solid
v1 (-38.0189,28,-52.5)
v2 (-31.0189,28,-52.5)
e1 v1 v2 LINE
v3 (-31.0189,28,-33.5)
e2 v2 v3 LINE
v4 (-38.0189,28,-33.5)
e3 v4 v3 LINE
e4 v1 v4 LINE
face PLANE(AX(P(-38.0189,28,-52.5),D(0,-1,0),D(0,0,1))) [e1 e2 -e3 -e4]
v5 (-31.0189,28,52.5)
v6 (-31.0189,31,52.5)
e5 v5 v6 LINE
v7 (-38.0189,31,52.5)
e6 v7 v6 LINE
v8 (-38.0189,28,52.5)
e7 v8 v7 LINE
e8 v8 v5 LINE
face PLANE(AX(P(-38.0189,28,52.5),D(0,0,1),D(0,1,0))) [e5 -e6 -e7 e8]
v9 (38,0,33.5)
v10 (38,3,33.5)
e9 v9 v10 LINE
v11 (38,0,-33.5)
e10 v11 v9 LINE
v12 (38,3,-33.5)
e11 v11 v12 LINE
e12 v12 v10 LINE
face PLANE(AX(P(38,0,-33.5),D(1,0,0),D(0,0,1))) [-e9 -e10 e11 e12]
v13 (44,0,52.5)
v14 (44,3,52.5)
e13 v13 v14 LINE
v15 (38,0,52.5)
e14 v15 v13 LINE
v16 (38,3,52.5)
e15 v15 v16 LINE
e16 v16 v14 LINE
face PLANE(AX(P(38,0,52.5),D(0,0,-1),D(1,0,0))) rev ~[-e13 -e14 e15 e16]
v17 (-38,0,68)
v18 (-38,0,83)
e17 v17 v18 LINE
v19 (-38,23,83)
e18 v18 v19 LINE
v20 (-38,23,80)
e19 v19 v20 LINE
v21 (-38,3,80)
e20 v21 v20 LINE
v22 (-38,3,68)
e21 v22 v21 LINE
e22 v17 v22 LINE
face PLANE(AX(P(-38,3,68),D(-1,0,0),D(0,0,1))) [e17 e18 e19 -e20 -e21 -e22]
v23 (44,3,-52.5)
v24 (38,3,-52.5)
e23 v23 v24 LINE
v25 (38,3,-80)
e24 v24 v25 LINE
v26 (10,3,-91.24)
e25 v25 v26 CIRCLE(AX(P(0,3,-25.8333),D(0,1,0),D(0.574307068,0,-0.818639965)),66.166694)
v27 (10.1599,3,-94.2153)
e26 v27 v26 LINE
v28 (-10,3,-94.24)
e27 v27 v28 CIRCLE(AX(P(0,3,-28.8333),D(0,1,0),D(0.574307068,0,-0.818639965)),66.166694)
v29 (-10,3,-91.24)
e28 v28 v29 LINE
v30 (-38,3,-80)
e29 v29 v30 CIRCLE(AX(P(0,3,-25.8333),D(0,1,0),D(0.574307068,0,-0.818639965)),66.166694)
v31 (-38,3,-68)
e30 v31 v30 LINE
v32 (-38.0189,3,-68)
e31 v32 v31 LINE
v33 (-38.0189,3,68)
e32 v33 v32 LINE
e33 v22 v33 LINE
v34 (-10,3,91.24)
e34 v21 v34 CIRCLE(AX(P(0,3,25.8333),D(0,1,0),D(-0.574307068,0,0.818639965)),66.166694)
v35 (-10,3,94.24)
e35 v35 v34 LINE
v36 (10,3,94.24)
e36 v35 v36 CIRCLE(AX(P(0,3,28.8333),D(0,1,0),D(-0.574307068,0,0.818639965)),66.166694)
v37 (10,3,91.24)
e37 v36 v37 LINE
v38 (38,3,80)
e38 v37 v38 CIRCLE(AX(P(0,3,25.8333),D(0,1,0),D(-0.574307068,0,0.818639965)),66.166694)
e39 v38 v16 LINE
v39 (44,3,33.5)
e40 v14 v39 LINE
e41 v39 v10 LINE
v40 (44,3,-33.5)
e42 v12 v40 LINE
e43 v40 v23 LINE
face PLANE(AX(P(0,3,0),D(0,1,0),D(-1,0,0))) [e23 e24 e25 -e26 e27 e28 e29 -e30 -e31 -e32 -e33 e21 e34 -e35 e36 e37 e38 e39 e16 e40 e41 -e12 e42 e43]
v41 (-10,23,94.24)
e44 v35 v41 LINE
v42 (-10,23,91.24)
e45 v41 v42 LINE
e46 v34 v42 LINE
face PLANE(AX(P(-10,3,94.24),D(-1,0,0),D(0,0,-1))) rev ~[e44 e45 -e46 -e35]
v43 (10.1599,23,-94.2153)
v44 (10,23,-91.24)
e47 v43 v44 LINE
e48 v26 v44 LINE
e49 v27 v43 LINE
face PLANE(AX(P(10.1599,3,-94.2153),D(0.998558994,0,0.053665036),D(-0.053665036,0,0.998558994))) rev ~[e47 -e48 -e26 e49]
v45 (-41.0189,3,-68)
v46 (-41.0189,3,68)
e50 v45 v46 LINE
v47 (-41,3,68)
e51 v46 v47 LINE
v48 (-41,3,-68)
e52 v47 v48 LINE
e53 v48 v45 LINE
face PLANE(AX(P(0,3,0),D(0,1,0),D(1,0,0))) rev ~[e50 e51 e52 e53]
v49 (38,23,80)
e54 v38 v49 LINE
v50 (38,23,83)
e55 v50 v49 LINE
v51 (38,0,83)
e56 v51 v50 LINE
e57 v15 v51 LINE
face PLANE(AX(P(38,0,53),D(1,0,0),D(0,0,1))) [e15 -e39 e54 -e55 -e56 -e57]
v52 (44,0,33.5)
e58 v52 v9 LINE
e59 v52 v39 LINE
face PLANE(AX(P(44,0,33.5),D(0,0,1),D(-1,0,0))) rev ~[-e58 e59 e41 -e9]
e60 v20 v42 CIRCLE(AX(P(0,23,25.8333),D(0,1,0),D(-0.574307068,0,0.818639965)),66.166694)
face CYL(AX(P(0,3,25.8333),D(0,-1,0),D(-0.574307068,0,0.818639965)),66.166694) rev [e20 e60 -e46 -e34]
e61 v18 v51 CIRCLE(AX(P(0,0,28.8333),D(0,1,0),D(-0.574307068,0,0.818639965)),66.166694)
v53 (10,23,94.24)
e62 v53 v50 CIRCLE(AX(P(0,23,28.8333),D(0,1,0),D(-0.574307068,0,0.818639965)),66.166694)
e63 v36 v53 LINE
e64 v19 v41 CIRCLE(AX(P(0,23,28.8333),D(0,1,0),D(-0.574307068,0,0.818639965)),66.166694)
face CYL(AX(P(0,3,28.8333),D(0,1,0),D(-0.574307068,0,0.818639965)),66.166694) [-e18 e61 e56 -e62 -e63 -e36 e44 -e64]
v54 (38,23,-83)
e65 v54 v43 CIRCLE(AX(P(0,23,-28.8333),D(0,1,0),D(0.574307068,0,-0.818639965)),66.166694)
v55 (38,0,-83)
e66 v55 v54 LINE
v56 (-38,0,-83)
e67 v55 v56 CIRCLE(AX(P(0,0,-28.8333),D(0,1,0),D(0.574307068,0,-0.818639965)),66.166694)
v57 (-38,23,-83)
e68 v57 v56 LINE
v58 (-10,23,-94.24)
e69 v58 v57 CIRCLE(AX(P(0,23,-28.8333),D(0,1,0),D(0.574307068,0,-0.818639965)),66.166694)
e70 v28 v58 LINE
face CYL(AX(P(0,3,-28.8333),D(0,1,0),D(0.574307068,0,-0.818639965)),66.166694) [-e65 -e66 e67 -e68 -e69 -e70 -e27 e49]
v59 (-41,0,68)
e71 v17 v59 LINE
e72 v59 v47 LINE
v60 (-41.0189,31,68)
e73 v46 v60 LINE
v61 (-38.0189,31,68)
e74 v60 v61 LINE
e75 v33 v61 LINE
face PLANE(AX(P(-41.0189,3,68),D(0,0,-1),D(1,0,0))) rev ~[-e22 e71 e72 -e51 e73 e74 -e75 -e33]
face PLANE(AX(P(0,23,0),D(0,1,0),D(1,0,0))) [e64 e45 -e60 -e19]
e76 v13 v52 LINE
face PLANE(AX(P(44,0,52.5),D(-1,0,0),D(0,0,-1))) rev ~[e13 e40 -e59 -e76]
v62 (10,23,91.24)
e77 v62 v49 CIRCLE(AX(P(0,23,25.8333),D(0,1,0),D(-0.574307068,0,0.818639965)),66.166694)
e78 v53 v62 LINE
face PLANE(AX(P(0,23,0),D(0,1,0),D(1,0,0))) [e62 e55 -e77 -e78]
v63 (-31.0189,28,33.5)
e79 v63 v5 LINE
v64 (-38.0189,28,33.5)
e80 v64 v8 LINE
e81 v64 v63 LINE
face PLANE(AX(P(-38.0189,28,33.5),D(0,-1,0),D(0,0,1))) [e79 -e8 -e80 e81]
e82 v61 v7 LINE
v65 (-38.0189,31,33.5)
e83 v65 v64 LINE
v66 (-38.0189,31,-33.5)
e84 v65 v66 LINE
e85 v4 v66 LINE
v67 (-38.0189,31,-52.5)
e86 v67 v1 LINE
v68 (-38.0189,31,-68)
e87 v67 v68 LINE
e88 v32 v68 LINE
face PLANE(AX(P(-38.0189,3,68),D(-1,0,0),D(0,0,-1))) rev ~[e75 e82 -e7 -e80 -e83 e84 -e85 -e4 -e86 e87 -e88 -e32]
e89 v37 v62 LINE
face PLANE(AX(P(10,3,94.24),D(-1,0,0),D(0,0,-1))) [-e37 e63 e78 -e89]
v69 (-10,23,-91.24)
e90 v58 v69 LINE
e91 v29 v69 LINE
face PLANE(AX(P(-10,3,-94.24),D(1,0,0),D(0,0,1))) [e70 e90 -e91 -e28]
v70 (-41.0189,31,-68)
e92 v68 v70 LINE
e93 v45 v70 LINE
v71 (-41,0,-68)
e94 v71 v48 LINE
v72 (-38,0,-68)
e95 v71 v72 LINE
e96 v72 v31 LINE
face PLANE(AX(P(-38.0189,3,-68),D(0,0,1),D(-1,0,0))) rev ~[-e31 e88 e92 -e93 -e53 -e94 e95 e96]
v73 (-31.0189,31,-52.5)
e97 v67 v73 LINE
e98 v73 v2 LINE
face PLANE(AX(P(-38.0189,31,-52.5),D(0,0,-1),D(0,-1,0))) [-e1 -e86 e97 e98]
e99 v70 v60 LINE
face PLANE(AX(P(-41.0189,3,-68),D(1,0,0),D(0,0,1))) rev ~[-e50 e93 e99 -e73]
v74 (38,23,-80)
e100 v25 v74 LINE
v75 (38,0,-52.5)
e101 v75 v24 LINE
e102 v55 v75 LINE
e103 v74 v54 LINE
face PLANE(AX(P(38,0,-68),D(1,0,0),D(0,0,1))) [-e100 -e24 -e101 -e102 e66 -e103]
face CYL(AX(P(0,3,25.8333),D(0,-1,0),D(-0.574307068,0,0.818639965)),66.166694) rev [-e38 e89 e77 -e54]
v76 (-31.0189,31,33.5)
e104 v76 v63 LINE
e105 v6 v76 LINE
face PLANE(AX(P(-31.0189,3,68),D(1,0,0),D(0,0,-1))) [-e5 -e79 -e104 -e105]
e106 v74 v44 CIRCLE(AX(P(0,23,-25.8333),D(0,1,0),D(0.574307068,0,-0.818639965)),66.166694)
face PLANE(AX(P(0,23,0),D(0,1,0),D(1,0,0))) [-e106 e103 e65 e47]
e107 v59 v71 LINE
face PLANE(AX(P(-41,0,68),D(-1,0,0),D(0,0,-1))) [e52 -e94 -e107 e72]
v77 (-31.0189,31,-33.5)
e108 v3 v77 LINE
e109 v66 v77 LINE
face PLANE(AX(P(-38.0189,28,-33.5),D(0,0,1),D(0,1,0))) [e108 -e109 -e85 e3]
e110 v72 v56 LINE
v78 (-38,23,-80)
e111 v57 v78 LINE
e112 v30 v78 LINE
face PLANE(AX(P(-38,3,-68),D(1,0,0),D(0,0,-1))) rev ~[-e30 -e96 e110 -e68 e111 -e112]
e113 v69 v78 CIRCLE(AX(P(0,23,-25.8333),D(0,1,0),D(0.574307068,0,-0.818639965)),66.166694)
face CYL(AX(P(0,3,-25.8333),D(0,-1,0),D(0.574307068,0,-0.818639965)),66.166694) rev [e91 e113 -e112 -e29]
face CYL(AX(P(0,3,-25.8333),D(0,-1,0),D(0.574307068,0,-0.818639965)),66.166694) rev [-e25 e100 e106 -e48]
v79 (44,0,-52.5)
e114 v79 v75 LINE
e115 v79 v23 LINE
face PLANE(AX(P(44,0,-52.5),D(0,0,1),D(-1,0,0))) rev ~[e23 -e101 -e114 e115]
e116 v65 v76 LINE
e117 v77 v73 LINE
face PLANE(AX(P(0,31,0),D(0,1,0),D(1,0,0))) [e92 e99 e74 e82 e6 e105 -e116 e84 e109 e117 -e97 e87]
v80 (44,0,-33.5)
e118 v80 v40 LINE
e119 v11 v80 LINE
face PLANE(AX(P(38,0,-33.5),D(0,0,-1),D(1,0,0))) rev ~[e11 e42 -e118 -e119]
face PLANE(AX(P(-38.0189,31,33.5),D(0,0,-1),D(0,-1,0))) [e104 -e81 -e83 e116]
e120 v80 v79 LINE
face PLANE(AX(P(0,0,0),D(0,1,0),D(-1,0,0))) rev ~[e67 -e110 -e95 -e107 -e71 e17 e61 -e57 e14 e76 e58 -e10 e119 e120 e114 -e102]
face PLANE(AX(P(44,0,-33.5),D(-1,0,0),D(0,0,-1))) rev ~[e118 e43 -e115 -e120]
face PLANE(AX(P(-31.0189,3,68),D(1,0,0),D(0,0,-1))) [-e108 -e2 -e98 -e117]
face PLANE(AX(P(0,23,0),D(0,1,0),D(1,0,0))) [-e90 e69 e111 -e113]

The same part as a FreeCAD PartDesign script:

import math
import FreeCAD as App
import Part
import Sketcher

V = App.Vector


def add_polygon(sketch, points):
    """Adds a closed chain of lines whose ends are joined by coincident constraints."""
    first, n = sketch.GeometryCount, len(points)
    for a, b in zip(points, points[1:] + points[:1]):
        sketch.addGeometry(Part.LineSegment(App.Vector(*a, 0), App.Vector(*b, 0)), False)
    for i in range(n):
        sketch.addConstraint(Sketcher.Constraint("Coincident", first + i, 2, first + (i + 1) % n, 1))

doc = App.newDocument("Part")
body = doc.addObject("PartDesign::Body", "Body")

sketch1 = body.newObject("Sketcher::SketchObject", "Sketch")
sketch1.AttachmentSupport = (doc.getObject("XZ_Plane"), [""])
sketch1.MapMode = "FlatFace"
sketch1.addGeometry(Part.LineSegment(V(-41, 68, 0), V(-38, 68, 0)), False)
sketch1.addGeometry(Part.ArcOfCircle(Part.Circle(V(0, 13.8, 0), V(0, 0, 1), 66.2), math.radians(55), math.radians(125)), False)
sketch1.addGeometry(Part.LineSegment(V(38, 68, 0), V(38, 52.5, 0)), False)
sketch1.addGeometry(Part.LineSegment(V(38, 52.5, 0), V(44, 52.5, 0)), False)
sketch1.addGeometry(Part.LineSegment(V(44, 52.5, 0), V(44, 33.5, 0)), False)
sketch1.addGeometry(Part.LineSegment(V(44, 33.5, 0), V(38, 33.5, 0)), False)
sketch1.addGeometry(Part.LineSegment(V(38, 33.5, 0), V(38, -33.5, 0)), False)
sketch1.addGeometry(Part.LineSegment(V(38, -33.5, 0), V(44, -33.5, 0)), False)
sketch1.addGeometry(Part.LineSegment(V(44, -33.5, 0), V(44, -52.5, 0)), False)
sketch1.addGeometry(Part.LineSegment(V(44, -52.5, 0), V(38, -52.5, 0)), False)
sketch1.addGeometry(Part.LineSegment(V(38, -52.5, 0), V(38, -68, 0)), False)
sketch1.addGeometry(Part.ArcOfCircle(Part.Circle(V(0, -13.8, 0), V(0, 0, 1), 66.2), math.radians(-125), math.radians(-55)), False)
sketch1.addGeometry(Part.LineSegment(V(-38, -68, 0), V(-41, -68, 0)), False)
sketch1.addGeometry(Part.LineSegment(V(-41, -68, 0), V(-41, 68, 0)), False)
sketch1.addConstraint(Sketcher.Constraint("Coincident", 0, 2, 1, 2))
sketch1.addConstraint(Sketcher.Constraint("Coincident", 1, 1, 2, 1))
sketch1.addConstraint(Sketcher.Constraint("Coincident", 2, 2, 3, 1))
sketch1.addConstraint(Sketcher.Constraint("Coincident", 3, 2, 4, 1))
sketch1.addConstraint(Sketcher.Constraint("Coincident", 4, 2, 5, 1))
sketch1.addConstraint(Sketcher.Constraint("Coincident", 5, 2, 6, 1))
sketch1.addConstraint(Sketcher.Constraint("Coincident", 6, 2, 7, 1))
sketch1.addConstraint(Sketcher.Constraint("Coincident", 7, 2, 8, 1))
sketch1.addConstraint(Sketcher.Constraint("Coincident", 8, 2, 9, 1))
sketch1.addConstraint(Sketcher.Constraint("Coincident", 9, 2, 10, 1))
sketch1.addConstraint(Sketcher.Constraint("Coincident", 10, 2, 11, 2))
sketch1.addConstraint(Sketcher.Constraint("Coincident", 11, 1, 12, 1))
sketch1.addConstraint(Sketcher.Constraint("Coincident", 12, 2, 13, 1))
sketch1.addConstraint(Sketcher.Constraint("Coincident", 13, 2, 0, 1))
sketch1.addConstraint(Sketcher.Constraint("Horizontal", 0))
sketch1.addConstraint(Sketcher.Constraint("Vertical", 2))
sketch1.addConstraint(Sketcher.Constraint("Horizontal", 3))
sketch1.addConstraint(Sketcher.Constraint("Vertical", 4))
sketch1.addConstraint(Sketcher.Constraint("Horizontal", 5))
sketch1.addConstraint(Sketcher.Constraint("Vertical", 6))
sketch1.addConstraint(Sketcher.Constraint("Horizontal", 7))
sketch1.addConstraint(Sketcher.Constraint("Vertical", 8))
sketch1.addConstraint(Sketcher.Constraint("Horizontal", 9))
sketch1.addConstraint(Sketcher.Constraint("Vertical", 10))
sketch1.addConstraint(Sketcher.Constraint("Horizontal", 12))
sketch1.addConstraint(Sketcher.Constraint("Vertical", 13))
sketch1.addConstraint(Sketcher.Constraint("Equal", 1, 11))
sketch1.addConstraint(Sketcher.Constraint("Symmetric", 1, 3, 11, 3, -1, 1))
sketch1.addConstraint(Sketcher.Constraint("Symmetric", 0, 2, 1, 1, -2))
sketch1.addConstraint(Sketcher.Constraint("Symmetric", 4, 2, 7, 2, -1))
sketch1.addConstraint(Sketcher.Constraint("Symmetric", 2, 2, 9, 2, -1))
sketch1.addConstraint(Sketcher.Constraint("Horizontal", 10, 2, 11, 1))
sketch1.addConstraint(Sketcher.Constraint("Vertical", 2, 2, 5, 2))
sketch1.addConstraint(Sketcher.Constraint("DistanceX", 0, 1, 0, 2, 3.0))
sketch1.addConstraint(Sketcher.Constraint("DistanceX", 3, 1, 3, 2, 6.0))
sketch1.addConstraint(Sketcher.Constraint("DistanceY", 4, 2, 4, 1, 19.0))
sketch1.addConstraint(Sketcher.Constraint("DistanceY", 6, 2, 6, 1, 67.0))
sketch1.addConstraint(Sketcher.Constraint("DistanceY", 13, 1, 13, 2, 136.0))
sketch1.addConstraint(Sketcher.Constraint("DistanceX", 0, 2, -1, 1, 38.0))
sketch1.addConstraint(Sketcher.Constraint("Radius", 1, 66.1667))
pad1 = body.newObject("PartDesign::Pad", "Pad")
pad1.Profile = sketch1
pad1.Length = 3
pad1.Reversed = True

sketch2 = body.newObject("Sketcher::SketchObject", "Sketch001")
sketch2.AttachmentSupport = (doc.getObject("XZ_Plane"), [""])
sketch2.MapMode = "FlatFace"
sketch2.AttachmentOffset = App.Placement(V(0, 0, -3), App.Rotation())
add_polygon(sketch2, [(-41, -68), (-41, 68), (-38, 68), (-38, -68)])
sketch2.addConstraint(Sketcher.Constraint("Vertical", 0))
sketch2.addConstraint(Sketcher.Constraint("Horizontal", 1))
sketch2.addConstraint(Sketcher.Constraint("Vertical", 2))
sketch2.addConstraint(Sketcher.Constraint("Horizontal", 3))
sketch2.addConstraint(Sketcher.Constraint("DistanceX", 1, 1, 1, 2, 3.0))
sketch2.addConstraint(Sketcher.Constraint("DistanceY", 0, 1, 0, 2, 136.0))
sketch2.addConstraint(Sketcher.Constraint("DistanceY", -1, 1, 0, 2, 68.0))
sketch2.addConstraint(Sketcher.Constraint("DistanceX", 0, 2, -1, 1, 41.019))
pad2 = body.newObject("PartDesign::Pad", "Pad001")
pad2.Profile = sketch2
pad2.Length = 28
pad2.Reversed = True

sketch3 = body.newObject("Sketcher::SketchObject", "Sketch002")
sketch3.AttachmentSupport = (doc.getObject("YZ_Plane"), [""])
sketch3.MapMode = "FlatFace"
sketch3.AttachmentOffset = App.Placement(V(0, 0, -38.0189), App.Rotation())
add_polygon(sketch3, [(31, 33.5), (31, 52.5), (28, 52.5), (28, 33.5)])
add_polygon(sketch3, [(31, -52.5), (31, -33.5), (28, -33.5), (28, -52.5)])
sketch3.addConstraint(Sketcher.Constraint("Vertical", 0))
sketch3.addConstraint(Sketcher.Constraint("Horizontal", 1))
sketch3.addConstraint(Sketcher.Constraint("Vertical", 2))
sketch3.addConstraint(Sketcher.Constraint("Horizontal", 3))
sketch3.addConstraint(Sketcher.Constraint("Vertical", 4))
sketch3.addConstraint(Sketcher.Constraint("Horizontal", 5))
sketch3.addConstraint(Sketcher.Constraint("Vertical", 6))
sketch3.addConstraint(Sketcher.Constraint("Horizontal", 7))
sketch3.addConstraint(Sketcher.Constraint("Symmetric", 3, 2, 4, 2, -1))
sketch3.addConstraint(Sketcher.Constraint("Symmetric", 1, 2, 6, 2, -1))
sketch3.addConstraint(Sketcher.Constraint("DistanceX", 1, 2, 1, 1, 3.0))
sketch3.addConstraint(Sketcher.Constraint("DistanceY", 0, 1, 0, 2, 19.0))
sketch3.addConstraint(Sketcher.Constraint("DistanceX", -1, 1, 0, 2, 31.0))
sketch3.addConstraint(Sketcher.Constraint("DistanceY", 4, 2, 3, 2, 67.0))
pad3 = body.newObject("PartDesign::Pad", "Pad002")
pad3.Profile = sketch3
pad3.Length = 7

sketch4 = body.newObject("Sketcher::SketchObject", "Sketch003")
sketch4.AttachmentSupport = (doc.getObject("XZ_Plane"), [""])
sketch4.MapMode = "FlatFace"
sketch4.AttachmentOffset = App.Placement(V(0, 0, -3), App.Rotation())
sketch4.addGeometry(Part.ArcOfCircle(Part.Circle(V(0, 14, 0), V(0, 0, 1), 66), math.radians(55), math.radians(125)), False)
sketch4.addGeometry(Part.LineSegment(V(-38, 68, 0), V(-38, 83, 0)), False)
sketch4.addGeometry(Part.ArcOfCircle(Part.Circle(V(0, 29, 0), V(0, 0, 1), 66), math.radians(55), math.radians(125)), False)
sketch4.addGeometry(Part.LineSegment(V(38, 83, 0), V(38, 68, 0)), False)
sketch4.addGeometry(Part.ArcOfCircle(Part.Circle(V(0, -14, 0), V(0, 0, 1), 66), math.radians(-125), math.radians(-55)), False)
sketch4.addGeometry(Part.LineSegment(V(38, -68, 0), V(38, -83, 0)), False)
sketch4.addGeometry(Part.ArcOfCircle(Part.Circle(V(0, -29, 0), V(0, 0, 1), 66), math.radians(-125), math.radians(-55)), False)
sketch4.addGeometry(Part.LineSegment(V(-38, -83, 0), V(-38, -68, 0)), False)
sketch4.addConstraint(Sketcher.Constraint("Coincident", 0, 2, 1, 1))
sketch4.addConstraint(Sketcher.Constraint("Coincident", 1, 2, 2, 2))
sketch4.addConstraint(Sketcher.Constraint("Coincident", 2, 1, 3, 1))
sketch4.addConstraint(Sketcher.Constraint("Coincident", 3, 2, 0, 1))
sketch4.addConstraint(Sketcher.Constraint("Coincident", 4, 2, 5, 1))
sketch4.addConstraint(Sketcher.Constraint("Coincident", 5, 2, 6, 2))
sketch4.addConstraint(Sketcher.Constraint("Coincident", 6, 1, 7, 1))
sketch4.addConstraint(Sketcher.Constraint("Coincident", 7, 2, 4, 1))
sketch4.addConstraint(Sketcher.Constraint("Vertical", 1))
sketch4.addConstraint(Sketcher.Constraint("Vertical", 3))
sketch4.addConstraint(Sketcher.Constraint("Vertical", 5))
sketch4.addConstraint(Sketcher.Constraint("Vertical", 7))
sketch4.addConstraint(Sketcher.Constraint("Equal", 0, 2))
sketch4.addConstraint(Sketcher.Constraint("Equal", 2, 4))
sketch4.addConstraint(Sketcher.Constraint("Equal", 4, 6))
sketch4.addConstraint(Sketcher.Constraint("Symmetric", 0, 3, 4, 3, -1, 1))
sketch4.addConstraint(Sketcher.Constraint("Symmetric", 2, 3, 6, 3, -1, 1))
sketch4.addConstraint(Sketcher.Constraint("Symmetric", 1, 2, 2, 1, -2))
sketch4.addConstraint(Sketcher.Constraint("Symmetric", 4, 2, 7, 2, -2))
sketch4.addConstraint(Sketcher.Constraint("Vertical", 3, 2, 4, 2))
sketch4.addConstraint(Sketcher.Constraint("DistanceY", 1, 1, 1, 2, 15.0))
sketch4.addConstraint(Sketcher.Constraint("DistanceX", 0, 2, -1, 1, 38.0))
sketch4.addConstraint(Sketcher.Constraint("DistanceY", -1, 1, 0, 2, 68.0))
sketch4.addConstraint(Sketcher.Constraint("Radius", 0, 66.1667))
pad4 = body.newObject("PartDesign::Pad", "Pad003")
pad4.Profile = sketch4
pad4.Length = 3

sketch5 = body.newObject("Sketcher::SketchObject", "Sketch004")
sketch5.AttachmentSupport = (doc.getObject("XZ_Plane"), [""])
sketch5.MapMode = "FlatFace"
sketch5.AttachmentOffset = App.Placement(V(0, 0, -3), App.Rotation())
sketch5.addGeometry(Part.LineSegment(V(-38, 80, 0), V(-38, 83, 0)), False)
sketch5.addGeometry(Part.ArcOfCircle(Part.Circle(V(0, 28.8, 0), V(0, 0, 1), 66.2), math.radians(55), math.radians(125)), False)
sketch5.addGeometry(Part.LineSegment(V(38, 83, 0), V(38, 80, 0)), False)
sketch5.addGeometry(Part.ArcOfCircle(Part.Circle(V(0, 25.8, 0), V(0, 0, 1), 66.2), math.radians(55), math.radians(125)), False)
sketch5.addGeometry(Part.LineSegment(V(38, -80, 0), V(38, -83, 0)), False)
sketch5.addGeometry(Part.ArcOfCircle(Part.Circle(V(0, -28.8, 0), V(0, 0, 1), 66.2), math.radians(-125), math.radians(-55)), False)
sketch5.addGeometry(Part.LineSegment(V(-38, -83, 0), V(-38, -80, 0)), False)
sketch5.addGeometry(Part.ArcOfCircle(Part.Circle(V(0, -25.8, 0), V(0, 0, 1), 66.2), math.radians(-125), math.radians(-55)), False)
sketch5.addConstraint(Sketcher.Constraint("Coincident", 0, 2, 1, 2))
sketch5.addConstraint(Sketcher.Constraint("Coincident", 1, 1, 2, 1))
sketch5.addConstraint(Sketcher.Constraint("Coincident", 2, 2, 3, 1))
sketch5.addConstraint(Sketcher.Constraint("Coincident", 3, 2, 0, 1))
sketch5.addConstraint(Sketcher.Constraint("Coincident", 4, 2, 5, 2))
sketch5.addConstraint(Sketcher.Constraint("Coincident", 5, 1, 6, 1))
sketch5.addConstraint(Sketcher.Constraint("Coincident", 6, 2, 7, 1))
sketch5.addConstraint(Sketcher.Constraint("Coincident", 7, 2, 4, 1))
sketch5.addConstraint(Sketcher.Constraint("Vertical", 0))
sketch5.addConstraint(Sketcher.Constraint("Vertical", 2))
sketch5.addConstraint(Sketcher.Constraint("Vertical", 4))
sketch5.addConstraint(Sketcher.Constraint("Vertical", 6))
sketch5.addConstraint(Sketcher.Constraint("Equal", 1, 3))
sketch5.addConstraint(Sketcher.Constraint("Equal", 3, 5))
sketch5.addConstraint(Sketcher.Constraint("Equal", 5, 7))
sketch5.addConstraint(Sketcher.Constraint("Symmetric", 1, 3, 5, 3, -1, 1))
sketch5.addConstraint(Sketcher.Constraint("Symmetric", 3, 3, 7, 3, -1, 1))
sketch5.addConstraint(Sketcher.Constraint("Symmetric", 0, 2, 1, 1, -2))
sketch5.addConstraint(Sketcher.Constraint("Symmetric", 6, 2, 7, 2, -2))
sketch5.addConstraint(Sketcher.Constraint("Vertical", 2, 2, 4, 2))
sketch5.addConstraint(Sketcher.Constraint("DistanceY", 0, 1, 0, 2, 3.0))
sketch5.addConstraint(Sketcher.Constraint("DistanceX", 0, 2, -1, 1, 38.0))
sketch5.addConstraint(Sketcher.Constraint("DistanceY", -1, 1, 0, 2, 83.0))
sketch5.addConstraint(Sketcher.Constraint("Radius", 1, 66.1667))
pad5 = body.newObject("PartDesign::Pad", "Pad004")
pad5.Profile = sketch5
pad5.Length = 20
pad5.Reversed = True

sketch6 = body.newObject("Sketcher::SketchObject", "Sketch005")
sketch6.AttachmentSupport = (doc.getObject("XZ_Plane"), [""])
sketch6.MapMode = "FlatFace"
sketch6.AttachmentOffset = App.Placement(V(0, 0, -3), App.Rotation())
sketch6.addGeometry(Part.LineSegment(V(-10, 91.2, 0), V(-10, 94.2, 0)), False)
sketch6.addGeometry(Part.ArcOfCircle(Part.Circle(V(0, 28.8, 0), V(0, 0, 1), 66.2), math.radians(81.31), math.radians(98.69)), False)
sketch6.addGeometry(Part.LineSegment(V(10, 94.2, 0), V(10, 91.2, 0)), False)
sketch6.addGeometry(Part.ArcOfCircle(Part.Circle(V(0, 25.8, 0), V(0, 0, 1), 66.2), math.radians(81.31), math.radians(98.69)), False)
sketch6.addGeometry(Part.LineSegment(V(10, -91.2, 0), V(10.2, -94.2, 0)), False)
sketch6.addGeometry(Part.ArcOfCircle(Part.Circle(V(0, -28.8, 0), V(0, 0, 1), 66.2), math.radians(-98.69), math.radians(-81.17)), False)
sketch6.addGeometry(Part.LineSegment(V(-10, -94.2, 0), V(-10, -91.2, 0)), False)
sketch6.addGeometry(Part.ArcOfCircle(Part.Circle(V(0, -25.8, 0), V(0, 0, 1), 66.2), math.radians(-98.69), math.radians(-81.31)), False)
sketch6.addConstraint(Sketcher.Constraint("Coincident", 0, 2, 1, 2))
sketch6.addConstraint(Sketcher.Constraint("Coincident", 1, 1, 2, 1))
sketch6.addConstraint(Sketcher.Constraint("Coincident", 2, 2, 3, 1))
sketch6.addConstraint(Sketcher.Constraint("Coincident", 3, 2, 0, 1))
sketch6.addConstraint(Sketcher.Constraint("Coincident", 4, 2, 5, 2))
sketch6.addConstraint(Sketcher.Constraint("Coincident", 5, 1, 6, 1))
sketch6.addConstraint(Sketcher.Constraint("Coincident", 6, 2, 7, 1))
sketch6.addConstraint(Sketcher.Constraint("Coincident", 7, 2, 4, 1))
sketch6.addConstraint(Sketcher.Constraint("Vertical", 0))
sketch6.addConstraint(Sketcher.Constraint("Vertical", 2))
sketch6.addConstraint(Sketcher.Constraint("Vertical", 6))
sketch6.addConstraint(Sketcher.Constraint("Equal", 1, 3))
sketch6.addConstraint(Sketcher.Constraint("Equal", 3, 5))
sketch6.addConstraint(Sketcher.Constraint("Equal", 5, 7))
sketch6.addConstraint(Sketcher.Constraint("Symmetric", 1, 3, 5, 3, -1, 1))
sketch6.addConstraint(Sketcher.Constraint("Symmetric", 3, 3, 7, 3, -1, 1))
sketch6.addConstraint(Sketcher.Constraint("Symmetric", 0, 2, 1, 1, -2))
sketch6.addConstraint(Sketcher.Constraint("Symmetric", 6, 2, 7, 2, -2))
sketch6.addConstraint(Sketcher.Constraint("Vertical", 3, 2, 5, 1))
sketch6.addConstraint(Sketcher.Constraint("DistanceY", 0, 1, 0, 2, 3.0))
sketch6.addConstraint(Sketcher.Constraint("DistanceX", 0, 2, -1, 1, 10.0))
sketch6.addConstraint(Sketcher.Constraint("Radius", 1, 66.1667))
sketch6.addConstraint(Sketcher.Constraint("DistanceY", -1, 1, 0, 2, 94.24))
sketch6.addConstraint(Sketcher.Constraint("DistanceX", -1, 1, 4, 2, 10.16))
pocket1 = body.newObject("PartDesign::Pocket", "Pocket")
pocket1.Profile = sketch6
pocket1.Length = 20

doc.recompute()
